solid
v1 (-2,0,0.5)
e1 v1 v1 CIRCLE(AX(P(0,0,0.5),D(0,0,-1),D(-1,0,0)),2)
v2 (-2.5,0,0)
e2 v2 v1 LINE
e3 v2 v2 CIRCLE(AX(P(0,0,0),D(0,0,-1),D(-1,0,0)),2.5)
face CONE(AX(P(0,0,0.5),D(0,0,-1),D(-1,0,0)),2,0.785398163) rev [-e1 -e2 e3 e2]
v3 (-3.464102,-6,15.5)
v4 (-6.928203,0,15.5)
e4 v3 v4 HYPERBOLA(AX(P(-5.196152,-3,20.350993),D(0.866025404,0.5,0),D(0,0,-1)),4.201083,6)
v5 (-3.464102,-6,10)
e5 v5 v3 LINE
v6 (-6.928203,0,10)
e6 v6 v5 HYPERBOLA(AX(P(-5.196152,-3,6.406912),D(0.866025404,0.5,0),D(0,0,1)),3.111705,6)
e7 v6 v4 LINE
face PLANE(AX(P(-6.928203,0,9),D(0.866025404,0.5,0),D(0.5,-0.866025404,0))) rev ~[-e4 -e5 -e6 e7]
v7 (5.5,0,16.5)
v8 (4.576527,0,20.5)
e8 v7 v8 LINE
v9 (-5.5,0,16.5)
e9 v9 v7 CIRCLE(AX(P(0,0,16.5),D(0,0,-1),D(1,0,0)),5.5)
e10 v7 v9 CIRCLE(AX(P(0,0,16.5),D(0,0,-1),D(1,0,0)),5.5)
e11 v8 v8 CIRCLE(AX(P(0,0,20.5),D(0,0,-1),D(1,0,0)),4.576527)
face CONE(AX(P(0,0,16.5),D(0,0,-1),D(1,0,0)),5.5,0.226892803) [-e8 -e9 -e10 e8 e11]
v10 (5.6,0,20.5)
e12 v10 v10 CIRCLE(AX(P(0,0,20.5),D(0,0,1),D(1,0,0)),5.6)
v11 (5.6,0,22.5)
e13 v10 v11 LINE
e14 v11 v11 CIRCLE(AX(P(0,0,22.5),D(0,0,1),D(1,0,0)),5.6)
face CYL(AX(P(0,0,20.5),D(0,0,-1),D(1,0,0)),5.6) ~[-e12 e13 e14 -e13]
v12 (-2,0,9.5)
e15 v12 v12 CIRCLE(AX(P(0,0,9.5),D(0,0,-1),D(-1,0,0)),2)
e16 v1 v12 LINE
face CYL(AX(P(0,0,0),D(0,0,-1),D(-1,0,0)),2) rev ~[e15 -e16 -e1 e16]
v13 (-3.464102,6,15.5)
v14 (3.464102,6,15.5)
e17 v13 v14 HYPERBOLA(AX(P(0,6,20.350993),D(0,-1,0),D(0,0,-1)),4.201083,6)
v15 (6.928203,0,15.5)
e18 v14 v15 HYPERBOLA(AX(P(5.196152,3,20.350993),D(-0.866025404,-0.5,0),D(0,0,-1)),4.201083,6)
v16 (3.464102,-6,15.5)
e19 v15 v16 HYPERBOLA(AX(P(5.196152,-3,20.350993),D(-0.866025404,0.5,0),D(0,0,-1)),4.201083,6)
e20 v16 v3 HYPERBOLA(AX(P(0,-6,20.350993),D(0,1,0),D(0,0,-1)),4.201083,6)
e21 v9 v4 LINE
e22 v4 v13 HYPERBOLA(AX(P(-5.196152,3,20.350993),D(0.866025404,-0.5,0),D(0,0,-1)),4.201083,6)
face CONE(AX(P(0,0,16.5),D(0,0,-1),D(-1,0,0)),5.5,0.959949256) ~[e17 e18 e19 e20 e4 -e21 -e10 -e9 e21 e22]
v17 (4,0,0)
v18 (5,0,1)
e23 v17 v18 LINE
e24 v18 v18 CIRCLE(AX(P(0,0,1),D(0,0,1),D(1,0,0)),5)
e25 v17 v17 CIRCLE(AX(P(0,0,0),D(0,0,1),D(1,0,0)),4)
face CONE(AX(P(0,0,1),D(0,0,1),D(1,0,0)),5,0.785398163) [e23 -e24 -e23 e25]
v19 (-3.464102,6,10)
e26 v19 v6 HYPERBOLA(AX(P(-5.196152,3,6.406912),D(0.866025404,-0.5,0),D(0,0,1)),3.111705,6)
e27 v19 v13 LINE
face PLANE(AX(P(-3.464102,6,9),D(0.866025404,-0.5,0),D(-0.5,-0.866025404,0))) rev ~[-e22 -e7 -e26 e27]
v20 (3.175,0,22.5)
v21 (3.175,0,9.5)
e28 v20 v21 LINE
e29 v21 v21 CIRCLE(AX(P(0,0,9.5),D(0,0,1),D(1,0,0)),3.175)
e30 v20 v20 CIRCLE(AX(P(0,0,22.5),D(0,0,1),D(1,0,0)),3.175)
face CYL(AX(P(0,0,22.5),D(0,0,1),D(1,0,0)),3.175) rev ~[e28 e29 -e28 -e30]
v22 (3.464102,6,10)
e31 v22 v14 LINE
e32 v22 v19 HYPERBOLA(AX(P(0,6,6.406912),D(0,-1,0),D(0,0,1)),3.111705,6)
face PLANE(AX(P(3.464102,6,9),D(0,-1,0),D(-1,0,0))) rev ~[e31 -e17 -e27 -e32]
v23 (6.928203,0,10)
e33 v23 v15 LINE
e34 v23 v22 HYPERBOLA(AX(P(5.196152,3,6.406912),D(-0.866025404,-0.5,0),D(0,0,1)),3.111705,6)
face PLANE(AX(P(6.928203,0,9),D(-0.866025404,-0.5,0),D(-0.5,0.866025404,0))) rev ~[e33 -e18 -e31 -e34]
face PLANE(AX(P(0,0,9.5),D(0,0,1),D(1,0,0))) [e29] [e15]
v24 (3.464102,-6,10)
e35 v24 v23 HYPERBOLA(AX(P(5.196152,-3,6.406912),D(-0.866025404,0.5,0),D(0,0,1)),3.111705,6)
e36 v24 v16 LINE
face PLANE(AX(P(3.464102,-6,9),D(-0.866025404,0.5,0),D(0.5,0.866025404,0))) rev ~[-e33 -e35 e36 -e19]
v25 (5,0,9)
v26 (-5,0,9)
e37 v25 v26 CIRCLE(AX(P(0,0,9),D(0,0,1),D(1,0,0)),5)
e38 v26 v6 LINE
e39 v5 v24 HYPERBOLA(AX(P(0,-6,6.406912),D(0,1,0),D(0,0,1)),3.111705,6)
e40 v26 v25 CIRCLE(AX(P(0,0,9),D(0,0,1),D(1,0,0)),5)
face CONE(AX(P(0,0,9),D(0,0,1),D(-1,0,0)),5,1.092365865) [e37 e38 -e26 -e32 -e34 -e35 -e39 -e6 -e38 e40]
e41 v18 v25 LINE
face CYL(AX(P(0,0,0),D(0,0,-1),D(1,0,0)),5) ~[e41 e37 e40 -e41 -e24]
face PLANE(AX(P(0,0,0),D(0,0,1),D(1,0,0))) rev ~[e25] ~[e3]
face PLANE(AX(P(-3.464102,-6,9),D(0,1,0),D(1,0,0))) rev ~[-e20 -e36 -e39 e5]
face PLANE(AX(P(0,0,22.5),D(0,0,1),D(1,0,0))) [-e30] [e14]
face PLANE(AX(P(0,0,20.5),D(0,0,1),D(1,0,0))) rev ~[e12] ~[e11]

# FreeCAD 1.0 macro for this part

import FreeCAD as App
import Part
import Sketcher

V = App.Vector
Q = App.Units.Quantity


def edges_at(feature, points):
    """Names of the edges that pass closest to the given points."""
    edges = feature.Shape.Edges
    near = lambda p: min(range(len(edges)), key=lambda i: edges[i].distToShape(Part.Vertex(*p))[0])
    return sorted({f"Edge{near(p) + 1}" for p in points})


def add_polygon(sketch, points):
    """Adds a closed chain of lines whose ends are joined by coincident constraints."""
    first, n = sketch.GeometryCount, len(points)
    for a, b in zip(points, points[1:] + points[:1]):
        sketch.addGeometry(Part.LineSegment(App.Vector(*a, 0), App.Vector(*b, 0)), False)
    for i in range(n):
        sketch.addConstraint(Sketcher.Constraint("Coincident", first + i, 2, first + (i + 1) % n, 1))

doc = App.newDocument("Part")
body = doc.addObject("PartDesign::Body", "Body")

# Sketch on XY plane
sketch1 = body.newObject("Sketcher::SketchObject", "Sketch")
sketch1.AttachmentSupport = (doc.getObject("XY_Plane"), [""])
sketch1.MapMode = "FlatFace"
sketch1.addGeometry(Part.Circle(V(0, 0, 0), V(0, 0, 1), 5), False)
sketch1.addConstraint(Sketcher.Constraint("Coincident", 0, 3, -1, 1))
sketch1.addConstraint(Sketcher.Constraint("Diameter", 0, Q("10 mm")))
pad1 = body.newObject("PartDesign::Pad", "Pad")
pad1.Profile = sketch1
pad1.Length = 9

# Sketch on XY plane
sketch2 = body.newObject("Sketcher::SketchObject", "Sketch001")
sketch2.AttachmentSupport = (doc.getObject("XY_Plane"), [""])
sketch2.MapMode = "FlatFace"
sketch2.AttachmentOffset = App.Placement(V(0, 0, 9), App.Rotation())
add_polygon(sketch2, [(7, 0), (3, 6), (-3, 6), (-7, 0), (-3, -6), (3, -6)])  # lines 0-5
sketch2.addConstraint(Sketcher.Constraint("Horizontal", 1))
sketch2.addConstraint(Sketcher.Constraint("Horizontal", 4))
sketch2.addConstraint(Sketcher.Constraint("Symmetric", 0, 2, 3, 2, -1, 1))
sketch2.addConstraint(Sketcher.Constraint("Symmetric", 2, 2, 5, 2, -1, 1))
sketch2.addConstraint(Sketcher.Constraint("PointOnObject", 2, 2, -1))
sketch2.addConstraint(Sketcher.Constraint("Parallel", 2, 5))
sketch2.addConstraint(Sketcher.Constraint("Vertical", 1, 2, 3, 2))
sketch2.addConstraint(Sketcher.Constraint("Angle", 0, Q("120 deg")))
sketch2.addConstraint(Sketcher.Constraint("DistanceY", -1, 1, 0, 2, Q("6 mm")))
sketch2.addConstraint(Sketcher.Constraint("DistanceX", -1, 1, 0, 2, Q("3.464102 mm")))
pad2 = body.newObject("PartDesign::Pad", "Pad001")
pad2.Profile = sketch2
pad2.Length = 7.5

# Sketch on XY plane
sketch3 = body.newObject("Sketcher::SketchObject", "Sketch002")
sketch3.AttachmentSupport = (doc.getObject("XY_Plane"), [""])
sketch3.MapMode = "FlatFace"
sketch3.AttachmentOffset = App.Placement(V(0, 0, 16.5), App.Rotation())
sketch3.addGeometry(Part.Circle(V(0, 0, 0), V(0, 0, 1), 6), False)
sketch3.addConstraint(Sketcher.Constraint("Coincident", 0, 3, -1, 1))
sketch3.addConstraint(Sketcher.Constraint("Diameter", 0, Q("11 mm")))
pad3 = body.newObject("PartDesign::Pad", "Pad002")
pad3.Profile = sketch3
pad3.Length = 4
pad3.TaperAngle = -13

# Sketch on XY plane
sketch4 = body.newObject("Sketcher::SketchObject", "Sketch003")
sketch4.AttachmentSupport = (doc.getObject("XY_Plane"), [""])
sketch4.MapMode = "FlatFace"
sketch4.AttachmentOffset = App.Placement(V(0, 0, 20.5), App.Rotation())
sketch4.addGeometry(Part.Circle(V(0, 0, 0), V(0, 0, 1), 6), False)
sketch4.addConstraint(Sketcher.Constraint("Coincident", 0, 3, -1, 1))
sketch4.addConstraint(Sketcher.Constraint("Diameter", 0, Q("11.2 mm")))
pad4 = body.newObject("PartDesign::Pad", "Pad003")
pad4.Profile = sketch4
pad4.Length = 2

# Sketch on XY plane
sketch5 = body.newObject("Sketcher::SketchObject", "Sketch004")
sketch5.AttachmentSupport = (doc.getObject("XY_Plane"), [""])
sketch5.MapMode = "FlatFace"
sketch5.AttachmentOffset = App.Placement(V(0, 0, 22.5), App.Rotation())
sketch5.addGeometry(Part.Circle(V(0, 0, 0), V(0, 0, 1), 3.2), False)
sketch5.addConstraint(Sketcher.Constraint("Coincident", 0, 3, -1, 1))
sketch5.addConstraint(Sketcher.Constraint("Diameter", 0, Q("6.35 mm")))
pocket1 = body.newObject("PartDesign::Pocket", "Pocket")
pocket1.Profile = sketch5
pocket1.Length = 13

# Sketch on XY plane
sketch6 = body.newObject("Sketcher::SketchObject", "Sketch005")
sketch6.AttachmentSupport = (doc.getObject("XY_Plane"), [""])
sketch6.MapMode = "FlatFace"
sketch6.addGeometry(Part.Circle(V(0, 0, 0), V(0, 0, 1), 2), False)
sketch6.addConstraint(Sketcher.Constraint("Coincident", 0, 3, -1, 1))
sketch6.addConstraint(Sketcher.Constraint("Diameter", 0, Q("4 mm")))
pocket2 = body.newObject("PartDesign::Pocket", "Pocket001")
pocket2.Profile = sketch6
pocket2.Type = "ThroughAll"
pocket2.Reversed = True

# Sketch on XZ plane
sketch7 = body.newObject("Sketcher::SketchObject", "Sketch006")
sketch7.AttachmentSupport = (doc.getObject("XZ_Plane"), [""])
sketch7.MapMode = "FlatFace"
add_polygon(sketch7, [(5, 9), (6.9, 10), (6.9, 9)])  # lines 0-2
add_polygon(sketch7, [(6.9, 16.5), (6.9, 15.5), (5.5, 16.5)])  # lines 3-5
sketch7.addConstraint(Sketcher.Constraint("Vertical", 1))
sketch7.addConstraint(Sketcher.Constraint("Horizontal", 2))
sketch7.addConstraint(Sketcher.Constraint("Vertical", 3))
sketch7.addConstraint(Sketcher.Constraint("Horizontal", 5))
sketch7.addConstraint(Sketcher.Constraint("Vertical", 1, 2, 3, 2))
sketch7.addConstraint(Sketcher.Constraint("Equal", 1, 3))
sketch7.addConstraint(Sketcher.Constraint("DistanceY", 1, 2, 1, 1, Q("1 mm")))
sketch7.addConstraint(Sketcher.Constraint("DistanceY", -1, 1, 0, 2, Q("10 mm")))
sketch7.addConstraint(Sketcher.Constraint("DistanceX", -1, 1, 2, 2, Q("5 mm")))
sketch7.addConstraint(Sketcher.Constraint("DistanceY", -1, 1, 3, 2, Q("15.5 mm")))
sketch7.addConstraint(Sketcher.Constraint("DistanceX", -1, 1, 4, 2, Q("5.5 mm")))
sketch7.addConstraint(Sketcher.Constraint("Distance", 0, Q("2.172088 mm")))
groove = body.newObject("PartDesign::Groove", "Groove")
groove.Profile = sketch7
groove.ReferenceAxis = (sketch7, ["V_Axis"])
groove.Angle = 360
doc.recompute()

chamfer = body.newObject("PartDesign::Chamfer", "Chamfer")
chamfer.Base = (groove, edges_at(groove, [(-5, 0, 0)]))
chamfer.Size = 1
doc.recompute()

chamfer2 = body.newObject("PartDesign::Chamfer", "Chamfer001")
chamfer2.Base = (chamfer, edges_at(chamfer, [(2, 0, 0)]))
chamfer2.Size = 0.5

doc.recompute()
